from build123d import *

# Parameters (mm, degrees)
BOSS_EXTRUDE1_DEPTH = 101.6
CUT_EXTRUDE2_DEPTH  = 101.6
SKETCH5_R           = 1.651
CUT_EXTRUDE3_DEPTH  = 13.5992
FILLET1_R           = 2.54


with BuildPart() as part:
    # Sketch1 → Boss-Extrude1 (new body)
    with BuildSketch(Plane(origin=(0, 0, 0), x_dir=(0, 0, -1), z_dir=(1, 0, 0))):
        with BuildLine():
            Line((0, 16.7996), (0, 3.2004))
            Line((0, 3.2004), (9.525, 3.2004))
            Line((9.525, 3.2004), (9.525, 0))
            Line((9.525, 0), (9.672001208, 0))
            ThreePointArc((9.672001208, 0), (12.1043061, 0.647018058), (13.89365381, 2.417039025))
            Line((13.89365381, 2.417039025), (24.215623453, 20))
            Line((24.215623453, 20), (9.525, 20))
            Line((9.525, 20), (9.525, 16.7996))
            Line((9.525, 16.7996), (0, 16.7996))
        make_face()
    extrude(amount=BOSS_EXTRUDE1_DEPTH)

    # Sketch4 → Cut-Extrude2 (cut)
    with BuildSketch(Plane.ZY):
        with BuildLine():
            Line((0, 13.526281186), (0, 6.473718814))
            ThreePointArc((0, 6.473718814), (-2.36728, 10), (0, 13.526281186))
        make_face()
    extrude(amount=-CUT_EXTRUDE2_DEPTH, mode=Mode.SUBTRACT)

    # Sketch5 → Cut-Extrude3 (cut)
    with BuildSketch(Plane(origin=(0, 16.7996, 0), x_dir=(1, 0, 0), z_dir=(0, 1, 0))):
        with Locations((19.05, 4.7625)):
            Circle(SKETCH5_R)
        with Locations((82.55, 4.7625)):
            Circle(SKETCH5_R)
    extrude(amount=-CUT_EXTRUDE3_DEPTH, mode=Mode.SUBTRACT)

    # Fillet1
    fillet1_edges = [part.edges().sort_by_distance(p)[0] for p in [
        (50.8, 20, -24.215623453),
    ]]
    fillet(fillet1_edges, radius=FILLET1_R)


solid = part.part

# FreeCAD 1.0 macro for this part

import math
import FreeCAD as App
import Part
import Sketcher
Q = App.Units.Quantity


def edges_at(feature, points):
    """Names of the edges that pass closest to the given points."""
    edges = feature.Shape.Edges
    near = lambda p: min(range(len(edges)), key=lambda i: edges[i].distToShape(Part.Vertex(*p))[0])
    return sorted({f"Edge{near(p) + 1}" for p in points})

doc = App.newDocument("Part")
params = doc.addObject("Spreadsheet::Sheet", "Params")
for row, (alias, value) in enumerate([
    ("sketch1_width", "0.126 in"),
    ("sketch1_height", "0.375 in"),
    ("pad1_length", "4 in"),
    ("sketch2_radius", "0.15 in"),
    ("pocket1_length", "4 in"),
    ("sketch3_diameter", "0.13 in"),
    ("pocket2_length", "13.5992 mm"),
    ("fillet_radius", "0.1 in"),
], start=1):
    params.set(f"A{row}", alias)
    params.set(f"B{row}", "=" + value)
    params.setAlias(f"B{row}", alias)

body = doc.addObject("PartDesign::Body", "Body")

# Sketch on YZ plane
sketch1 = body.newObject("Sketcher::SketchObject", "Sketch")
sketch1.AttachmentSupport = (doc.getObject("YZ_Plane"), [""])
sketch1.MapMode = "FlatFace"
sketch1.addGeometry([
    Part.LineSegment(App.Vector(16.8, 0, 0), App.Vector(3.2, 0, 0)),  # 0
    Part.LineSegment(App.Vector(3.2, 0, 0), App.Vector(3.2, -9.53, 0)),  # 1
    Part.LineSegment(App.Vector(3.2, -9.53, 0), App.Vector(0, -9.53, 0)),  # 2
    Part.LineSegment(App.Vector(0, -9.53, 0), App.Vector(0, -9.67, 0)),  # 3
    Part.ArcOfCircle(Part.Circle(App.Vector(4.9, -9.67, 0), App.Vector(0, 0, 1), 4.9), math.radians(180), math.radians(240)),  # 4
    Part.LineSegment(App.Vector(2.42, -13.89, 0), App.Vector(20, -24.22, 0)),  # 5
    Part.LineSegment(App.Vector(20, -24.22, 0), App.Vector(20, -9.53, 0)),  # 6
    Part.LineSegment(App.Vector(20, -9.53, 0), App.Vector(16.8, -9.53, 0)),  # 7
    Part.LineSegment(App.Vector(16.8, -9.53, 0), App.Vector(16.8, 0, 0)),  # 8
], False)
sketch1.addConstraint([
    Sketcher.Constraint("Coincident", 0, 2, 1, 1),
    Sketcher.Constraint("Coincident", 1, 2, 2, 1),
    Sketcher.Constraint("Coincident", 2, 2, 3, 1),
    Sketcher.Constraint("Tangent", 3, 2, 4, 1),
    Sketcher.Constraint("Tangent", 4, 2, 5, 1),
    Sketcher.Constraint("Coincident", 5, 2, 6, 1),
    Sketcher.Constraint("Coincident", 6, 2, 7, 1),
    Sketcher.Constraint("Coincident", 7, 2, 8, 1),
    Sketcher.Constraint("Coincident", 8, 2, 0, 1),
    Sketcher.Constraint("Horizontal", 0),
    Sketcher.Constraint("Vertical", 1),
    Sketcher.Constraint("Horizontal", 2),
    Sketcher.Constraint("Vertical", 3),
    Sketcher.Constraint("Vertical", 6),
    Sketcher.Constraint("Horizontal", 7),
    Sketcher.Constraint("Vertical", 8),
    Sketcher.Constraint("PointOnObject", 0, 2, -1),
    Sketcher.Constraint("PointOnObject", 2, 2, -2),
    Sketcher.Constraint("Horizontal", 2, 2, 6, 2),
    Sketcher.Constraint("Equal", 2, 7),
    Sketcher.Constraint("DistanceX", 2, 2, 2, 1, Q("0.126 in")),
    Sketcher.Constraint("DistanceY", 1, 2, 1, 1, Q("0.375 in")),
    Sketcher.Constraint("DistanceX", 0, 2, 0, 1, 13.5992),
    Sketcher.Constraint("DistanceY", 3, 2, 3, 1, 0.147001),
    Sketcher.Constraint("Radius", 4, 4.895334),
    Sketcher.Constraint("Distance", 5, 20.38881),
])
sketch1.setExpression("Constraints[20]", "Params.sketch1_width")
sketch1.setExpression("Constraints[21]", "Params.sketch1_height")
pad1 = body.newObject("PartDesign::Pad", "Pad")
pad1.Profile = sketch1
pad1.setExpression("Length", "Params.pad1_length")

# Sketch on YZ plane
sketch2 = body.newObject("Sketcher::SketchObject", "Sketch001")
sketch2.AttachmentSupport = (doc.getObject("YZ_Plane"), [""])
sketch2.MapMode = "FlatFace"
sketch2.addGeometry([
    Part.LineSegment(App.Vector(6.5, 0, 0), App.Vector(13.5, 0, 0)),
    Part.ArcOfCircle(Part.Circle(App.Vector(10, 1.4, 0), App.Vector(0, 0, 1), 3.8), math.radians(-158), math.radians(-22)),
], False)
sketch2.addConstraint([
    Sketcher.Constraint("Coincident", 0, 1, 1, 1),
    Sketcher.Constraint("Coincident", 1, 2, 0, 2),
    Sketcher.Constraint("Horizontal", 0),
    Sketcher.Constraint("PointOnObject", 0, 1, -1),
    Sketcher.Constraint("Radius", 1, Q("0.15 in")),
    Sketcher.Constraint("DistanceY", -1, 1, 1, 3, Q("0.0568 in")),
    Sketcher.Constraint("DistanceX", -1, 1, 1, 3, 10.0),
])
sketch2.setExpression("Constraints[4]", "Params.sketch2_radius")
pocket1 = body.newObject("PartDesign::Pocket", "Pocket")
pocket1.Profile = sketch2
pocket1.setExpression("Length", "Params.pocket1_length")
pocket1.Reversed = True

# Sketch on XZ plane
sketch3 = body.newObject("Sketcher::SketchObject", "Sketch002")
sketch3.AttachmentSupport = (doc.getObject("XZ_Plane"), [""])
sketch3.MapMode = "FlatFace"
sketch3.AttachmentOffset = App.Placement(App.Vector(0, 0, -16.7996), App.Rotation())
sketch3.addGeometry([
    Part.Circle(App.Vector(19.1, -4.8, 0), App.Vector(0, 0, 1), 1.7),
    Part.Circle(App.Vector(82.5, -4.8, 0), App.Vector(0, 0, 1), 1.7),
], False)
sketch3.addConstraint([
    Sketcher.Constraint("Equal", 0, 1),
    Sketcher.Constraint("Horizontal", 0, 3, 1, 3),
    Sketcher.Constraint("Diameter", 0, Q("0.13 in")),
    Sketcher.Constraint("DistanceX", 0, 3, 1, 3, Q("2.5 in")),
    Sketcher.Constraint("DistanceX", -1, 1, 0, 3, Q("0.75 in")),
    Sketcher.Constraint("DistanceY", 0, 3, -1, 1, Q("0.1875 in")),
])
sketch3.setExpression("Constraints[2]", "Params.sketch3_diameter")
pocket2 = body.newObject("PartDesign::Pocket", "Pocket001")
pocket2.Profile = sketch3
pocket2.setExpression("Length", "Params.pocket2_length")
pocket2.Reversed = True
doc.recompute()

fillet = body.newObject("PartDesign::Fillet", "Fillet")
fillet.Base = (pocket2, edges_at(pocket2, [(50.8, 20, -24.216)]))
fillet.setExpression("Radius", "Params.fillet_radius")

doc.recompute()
